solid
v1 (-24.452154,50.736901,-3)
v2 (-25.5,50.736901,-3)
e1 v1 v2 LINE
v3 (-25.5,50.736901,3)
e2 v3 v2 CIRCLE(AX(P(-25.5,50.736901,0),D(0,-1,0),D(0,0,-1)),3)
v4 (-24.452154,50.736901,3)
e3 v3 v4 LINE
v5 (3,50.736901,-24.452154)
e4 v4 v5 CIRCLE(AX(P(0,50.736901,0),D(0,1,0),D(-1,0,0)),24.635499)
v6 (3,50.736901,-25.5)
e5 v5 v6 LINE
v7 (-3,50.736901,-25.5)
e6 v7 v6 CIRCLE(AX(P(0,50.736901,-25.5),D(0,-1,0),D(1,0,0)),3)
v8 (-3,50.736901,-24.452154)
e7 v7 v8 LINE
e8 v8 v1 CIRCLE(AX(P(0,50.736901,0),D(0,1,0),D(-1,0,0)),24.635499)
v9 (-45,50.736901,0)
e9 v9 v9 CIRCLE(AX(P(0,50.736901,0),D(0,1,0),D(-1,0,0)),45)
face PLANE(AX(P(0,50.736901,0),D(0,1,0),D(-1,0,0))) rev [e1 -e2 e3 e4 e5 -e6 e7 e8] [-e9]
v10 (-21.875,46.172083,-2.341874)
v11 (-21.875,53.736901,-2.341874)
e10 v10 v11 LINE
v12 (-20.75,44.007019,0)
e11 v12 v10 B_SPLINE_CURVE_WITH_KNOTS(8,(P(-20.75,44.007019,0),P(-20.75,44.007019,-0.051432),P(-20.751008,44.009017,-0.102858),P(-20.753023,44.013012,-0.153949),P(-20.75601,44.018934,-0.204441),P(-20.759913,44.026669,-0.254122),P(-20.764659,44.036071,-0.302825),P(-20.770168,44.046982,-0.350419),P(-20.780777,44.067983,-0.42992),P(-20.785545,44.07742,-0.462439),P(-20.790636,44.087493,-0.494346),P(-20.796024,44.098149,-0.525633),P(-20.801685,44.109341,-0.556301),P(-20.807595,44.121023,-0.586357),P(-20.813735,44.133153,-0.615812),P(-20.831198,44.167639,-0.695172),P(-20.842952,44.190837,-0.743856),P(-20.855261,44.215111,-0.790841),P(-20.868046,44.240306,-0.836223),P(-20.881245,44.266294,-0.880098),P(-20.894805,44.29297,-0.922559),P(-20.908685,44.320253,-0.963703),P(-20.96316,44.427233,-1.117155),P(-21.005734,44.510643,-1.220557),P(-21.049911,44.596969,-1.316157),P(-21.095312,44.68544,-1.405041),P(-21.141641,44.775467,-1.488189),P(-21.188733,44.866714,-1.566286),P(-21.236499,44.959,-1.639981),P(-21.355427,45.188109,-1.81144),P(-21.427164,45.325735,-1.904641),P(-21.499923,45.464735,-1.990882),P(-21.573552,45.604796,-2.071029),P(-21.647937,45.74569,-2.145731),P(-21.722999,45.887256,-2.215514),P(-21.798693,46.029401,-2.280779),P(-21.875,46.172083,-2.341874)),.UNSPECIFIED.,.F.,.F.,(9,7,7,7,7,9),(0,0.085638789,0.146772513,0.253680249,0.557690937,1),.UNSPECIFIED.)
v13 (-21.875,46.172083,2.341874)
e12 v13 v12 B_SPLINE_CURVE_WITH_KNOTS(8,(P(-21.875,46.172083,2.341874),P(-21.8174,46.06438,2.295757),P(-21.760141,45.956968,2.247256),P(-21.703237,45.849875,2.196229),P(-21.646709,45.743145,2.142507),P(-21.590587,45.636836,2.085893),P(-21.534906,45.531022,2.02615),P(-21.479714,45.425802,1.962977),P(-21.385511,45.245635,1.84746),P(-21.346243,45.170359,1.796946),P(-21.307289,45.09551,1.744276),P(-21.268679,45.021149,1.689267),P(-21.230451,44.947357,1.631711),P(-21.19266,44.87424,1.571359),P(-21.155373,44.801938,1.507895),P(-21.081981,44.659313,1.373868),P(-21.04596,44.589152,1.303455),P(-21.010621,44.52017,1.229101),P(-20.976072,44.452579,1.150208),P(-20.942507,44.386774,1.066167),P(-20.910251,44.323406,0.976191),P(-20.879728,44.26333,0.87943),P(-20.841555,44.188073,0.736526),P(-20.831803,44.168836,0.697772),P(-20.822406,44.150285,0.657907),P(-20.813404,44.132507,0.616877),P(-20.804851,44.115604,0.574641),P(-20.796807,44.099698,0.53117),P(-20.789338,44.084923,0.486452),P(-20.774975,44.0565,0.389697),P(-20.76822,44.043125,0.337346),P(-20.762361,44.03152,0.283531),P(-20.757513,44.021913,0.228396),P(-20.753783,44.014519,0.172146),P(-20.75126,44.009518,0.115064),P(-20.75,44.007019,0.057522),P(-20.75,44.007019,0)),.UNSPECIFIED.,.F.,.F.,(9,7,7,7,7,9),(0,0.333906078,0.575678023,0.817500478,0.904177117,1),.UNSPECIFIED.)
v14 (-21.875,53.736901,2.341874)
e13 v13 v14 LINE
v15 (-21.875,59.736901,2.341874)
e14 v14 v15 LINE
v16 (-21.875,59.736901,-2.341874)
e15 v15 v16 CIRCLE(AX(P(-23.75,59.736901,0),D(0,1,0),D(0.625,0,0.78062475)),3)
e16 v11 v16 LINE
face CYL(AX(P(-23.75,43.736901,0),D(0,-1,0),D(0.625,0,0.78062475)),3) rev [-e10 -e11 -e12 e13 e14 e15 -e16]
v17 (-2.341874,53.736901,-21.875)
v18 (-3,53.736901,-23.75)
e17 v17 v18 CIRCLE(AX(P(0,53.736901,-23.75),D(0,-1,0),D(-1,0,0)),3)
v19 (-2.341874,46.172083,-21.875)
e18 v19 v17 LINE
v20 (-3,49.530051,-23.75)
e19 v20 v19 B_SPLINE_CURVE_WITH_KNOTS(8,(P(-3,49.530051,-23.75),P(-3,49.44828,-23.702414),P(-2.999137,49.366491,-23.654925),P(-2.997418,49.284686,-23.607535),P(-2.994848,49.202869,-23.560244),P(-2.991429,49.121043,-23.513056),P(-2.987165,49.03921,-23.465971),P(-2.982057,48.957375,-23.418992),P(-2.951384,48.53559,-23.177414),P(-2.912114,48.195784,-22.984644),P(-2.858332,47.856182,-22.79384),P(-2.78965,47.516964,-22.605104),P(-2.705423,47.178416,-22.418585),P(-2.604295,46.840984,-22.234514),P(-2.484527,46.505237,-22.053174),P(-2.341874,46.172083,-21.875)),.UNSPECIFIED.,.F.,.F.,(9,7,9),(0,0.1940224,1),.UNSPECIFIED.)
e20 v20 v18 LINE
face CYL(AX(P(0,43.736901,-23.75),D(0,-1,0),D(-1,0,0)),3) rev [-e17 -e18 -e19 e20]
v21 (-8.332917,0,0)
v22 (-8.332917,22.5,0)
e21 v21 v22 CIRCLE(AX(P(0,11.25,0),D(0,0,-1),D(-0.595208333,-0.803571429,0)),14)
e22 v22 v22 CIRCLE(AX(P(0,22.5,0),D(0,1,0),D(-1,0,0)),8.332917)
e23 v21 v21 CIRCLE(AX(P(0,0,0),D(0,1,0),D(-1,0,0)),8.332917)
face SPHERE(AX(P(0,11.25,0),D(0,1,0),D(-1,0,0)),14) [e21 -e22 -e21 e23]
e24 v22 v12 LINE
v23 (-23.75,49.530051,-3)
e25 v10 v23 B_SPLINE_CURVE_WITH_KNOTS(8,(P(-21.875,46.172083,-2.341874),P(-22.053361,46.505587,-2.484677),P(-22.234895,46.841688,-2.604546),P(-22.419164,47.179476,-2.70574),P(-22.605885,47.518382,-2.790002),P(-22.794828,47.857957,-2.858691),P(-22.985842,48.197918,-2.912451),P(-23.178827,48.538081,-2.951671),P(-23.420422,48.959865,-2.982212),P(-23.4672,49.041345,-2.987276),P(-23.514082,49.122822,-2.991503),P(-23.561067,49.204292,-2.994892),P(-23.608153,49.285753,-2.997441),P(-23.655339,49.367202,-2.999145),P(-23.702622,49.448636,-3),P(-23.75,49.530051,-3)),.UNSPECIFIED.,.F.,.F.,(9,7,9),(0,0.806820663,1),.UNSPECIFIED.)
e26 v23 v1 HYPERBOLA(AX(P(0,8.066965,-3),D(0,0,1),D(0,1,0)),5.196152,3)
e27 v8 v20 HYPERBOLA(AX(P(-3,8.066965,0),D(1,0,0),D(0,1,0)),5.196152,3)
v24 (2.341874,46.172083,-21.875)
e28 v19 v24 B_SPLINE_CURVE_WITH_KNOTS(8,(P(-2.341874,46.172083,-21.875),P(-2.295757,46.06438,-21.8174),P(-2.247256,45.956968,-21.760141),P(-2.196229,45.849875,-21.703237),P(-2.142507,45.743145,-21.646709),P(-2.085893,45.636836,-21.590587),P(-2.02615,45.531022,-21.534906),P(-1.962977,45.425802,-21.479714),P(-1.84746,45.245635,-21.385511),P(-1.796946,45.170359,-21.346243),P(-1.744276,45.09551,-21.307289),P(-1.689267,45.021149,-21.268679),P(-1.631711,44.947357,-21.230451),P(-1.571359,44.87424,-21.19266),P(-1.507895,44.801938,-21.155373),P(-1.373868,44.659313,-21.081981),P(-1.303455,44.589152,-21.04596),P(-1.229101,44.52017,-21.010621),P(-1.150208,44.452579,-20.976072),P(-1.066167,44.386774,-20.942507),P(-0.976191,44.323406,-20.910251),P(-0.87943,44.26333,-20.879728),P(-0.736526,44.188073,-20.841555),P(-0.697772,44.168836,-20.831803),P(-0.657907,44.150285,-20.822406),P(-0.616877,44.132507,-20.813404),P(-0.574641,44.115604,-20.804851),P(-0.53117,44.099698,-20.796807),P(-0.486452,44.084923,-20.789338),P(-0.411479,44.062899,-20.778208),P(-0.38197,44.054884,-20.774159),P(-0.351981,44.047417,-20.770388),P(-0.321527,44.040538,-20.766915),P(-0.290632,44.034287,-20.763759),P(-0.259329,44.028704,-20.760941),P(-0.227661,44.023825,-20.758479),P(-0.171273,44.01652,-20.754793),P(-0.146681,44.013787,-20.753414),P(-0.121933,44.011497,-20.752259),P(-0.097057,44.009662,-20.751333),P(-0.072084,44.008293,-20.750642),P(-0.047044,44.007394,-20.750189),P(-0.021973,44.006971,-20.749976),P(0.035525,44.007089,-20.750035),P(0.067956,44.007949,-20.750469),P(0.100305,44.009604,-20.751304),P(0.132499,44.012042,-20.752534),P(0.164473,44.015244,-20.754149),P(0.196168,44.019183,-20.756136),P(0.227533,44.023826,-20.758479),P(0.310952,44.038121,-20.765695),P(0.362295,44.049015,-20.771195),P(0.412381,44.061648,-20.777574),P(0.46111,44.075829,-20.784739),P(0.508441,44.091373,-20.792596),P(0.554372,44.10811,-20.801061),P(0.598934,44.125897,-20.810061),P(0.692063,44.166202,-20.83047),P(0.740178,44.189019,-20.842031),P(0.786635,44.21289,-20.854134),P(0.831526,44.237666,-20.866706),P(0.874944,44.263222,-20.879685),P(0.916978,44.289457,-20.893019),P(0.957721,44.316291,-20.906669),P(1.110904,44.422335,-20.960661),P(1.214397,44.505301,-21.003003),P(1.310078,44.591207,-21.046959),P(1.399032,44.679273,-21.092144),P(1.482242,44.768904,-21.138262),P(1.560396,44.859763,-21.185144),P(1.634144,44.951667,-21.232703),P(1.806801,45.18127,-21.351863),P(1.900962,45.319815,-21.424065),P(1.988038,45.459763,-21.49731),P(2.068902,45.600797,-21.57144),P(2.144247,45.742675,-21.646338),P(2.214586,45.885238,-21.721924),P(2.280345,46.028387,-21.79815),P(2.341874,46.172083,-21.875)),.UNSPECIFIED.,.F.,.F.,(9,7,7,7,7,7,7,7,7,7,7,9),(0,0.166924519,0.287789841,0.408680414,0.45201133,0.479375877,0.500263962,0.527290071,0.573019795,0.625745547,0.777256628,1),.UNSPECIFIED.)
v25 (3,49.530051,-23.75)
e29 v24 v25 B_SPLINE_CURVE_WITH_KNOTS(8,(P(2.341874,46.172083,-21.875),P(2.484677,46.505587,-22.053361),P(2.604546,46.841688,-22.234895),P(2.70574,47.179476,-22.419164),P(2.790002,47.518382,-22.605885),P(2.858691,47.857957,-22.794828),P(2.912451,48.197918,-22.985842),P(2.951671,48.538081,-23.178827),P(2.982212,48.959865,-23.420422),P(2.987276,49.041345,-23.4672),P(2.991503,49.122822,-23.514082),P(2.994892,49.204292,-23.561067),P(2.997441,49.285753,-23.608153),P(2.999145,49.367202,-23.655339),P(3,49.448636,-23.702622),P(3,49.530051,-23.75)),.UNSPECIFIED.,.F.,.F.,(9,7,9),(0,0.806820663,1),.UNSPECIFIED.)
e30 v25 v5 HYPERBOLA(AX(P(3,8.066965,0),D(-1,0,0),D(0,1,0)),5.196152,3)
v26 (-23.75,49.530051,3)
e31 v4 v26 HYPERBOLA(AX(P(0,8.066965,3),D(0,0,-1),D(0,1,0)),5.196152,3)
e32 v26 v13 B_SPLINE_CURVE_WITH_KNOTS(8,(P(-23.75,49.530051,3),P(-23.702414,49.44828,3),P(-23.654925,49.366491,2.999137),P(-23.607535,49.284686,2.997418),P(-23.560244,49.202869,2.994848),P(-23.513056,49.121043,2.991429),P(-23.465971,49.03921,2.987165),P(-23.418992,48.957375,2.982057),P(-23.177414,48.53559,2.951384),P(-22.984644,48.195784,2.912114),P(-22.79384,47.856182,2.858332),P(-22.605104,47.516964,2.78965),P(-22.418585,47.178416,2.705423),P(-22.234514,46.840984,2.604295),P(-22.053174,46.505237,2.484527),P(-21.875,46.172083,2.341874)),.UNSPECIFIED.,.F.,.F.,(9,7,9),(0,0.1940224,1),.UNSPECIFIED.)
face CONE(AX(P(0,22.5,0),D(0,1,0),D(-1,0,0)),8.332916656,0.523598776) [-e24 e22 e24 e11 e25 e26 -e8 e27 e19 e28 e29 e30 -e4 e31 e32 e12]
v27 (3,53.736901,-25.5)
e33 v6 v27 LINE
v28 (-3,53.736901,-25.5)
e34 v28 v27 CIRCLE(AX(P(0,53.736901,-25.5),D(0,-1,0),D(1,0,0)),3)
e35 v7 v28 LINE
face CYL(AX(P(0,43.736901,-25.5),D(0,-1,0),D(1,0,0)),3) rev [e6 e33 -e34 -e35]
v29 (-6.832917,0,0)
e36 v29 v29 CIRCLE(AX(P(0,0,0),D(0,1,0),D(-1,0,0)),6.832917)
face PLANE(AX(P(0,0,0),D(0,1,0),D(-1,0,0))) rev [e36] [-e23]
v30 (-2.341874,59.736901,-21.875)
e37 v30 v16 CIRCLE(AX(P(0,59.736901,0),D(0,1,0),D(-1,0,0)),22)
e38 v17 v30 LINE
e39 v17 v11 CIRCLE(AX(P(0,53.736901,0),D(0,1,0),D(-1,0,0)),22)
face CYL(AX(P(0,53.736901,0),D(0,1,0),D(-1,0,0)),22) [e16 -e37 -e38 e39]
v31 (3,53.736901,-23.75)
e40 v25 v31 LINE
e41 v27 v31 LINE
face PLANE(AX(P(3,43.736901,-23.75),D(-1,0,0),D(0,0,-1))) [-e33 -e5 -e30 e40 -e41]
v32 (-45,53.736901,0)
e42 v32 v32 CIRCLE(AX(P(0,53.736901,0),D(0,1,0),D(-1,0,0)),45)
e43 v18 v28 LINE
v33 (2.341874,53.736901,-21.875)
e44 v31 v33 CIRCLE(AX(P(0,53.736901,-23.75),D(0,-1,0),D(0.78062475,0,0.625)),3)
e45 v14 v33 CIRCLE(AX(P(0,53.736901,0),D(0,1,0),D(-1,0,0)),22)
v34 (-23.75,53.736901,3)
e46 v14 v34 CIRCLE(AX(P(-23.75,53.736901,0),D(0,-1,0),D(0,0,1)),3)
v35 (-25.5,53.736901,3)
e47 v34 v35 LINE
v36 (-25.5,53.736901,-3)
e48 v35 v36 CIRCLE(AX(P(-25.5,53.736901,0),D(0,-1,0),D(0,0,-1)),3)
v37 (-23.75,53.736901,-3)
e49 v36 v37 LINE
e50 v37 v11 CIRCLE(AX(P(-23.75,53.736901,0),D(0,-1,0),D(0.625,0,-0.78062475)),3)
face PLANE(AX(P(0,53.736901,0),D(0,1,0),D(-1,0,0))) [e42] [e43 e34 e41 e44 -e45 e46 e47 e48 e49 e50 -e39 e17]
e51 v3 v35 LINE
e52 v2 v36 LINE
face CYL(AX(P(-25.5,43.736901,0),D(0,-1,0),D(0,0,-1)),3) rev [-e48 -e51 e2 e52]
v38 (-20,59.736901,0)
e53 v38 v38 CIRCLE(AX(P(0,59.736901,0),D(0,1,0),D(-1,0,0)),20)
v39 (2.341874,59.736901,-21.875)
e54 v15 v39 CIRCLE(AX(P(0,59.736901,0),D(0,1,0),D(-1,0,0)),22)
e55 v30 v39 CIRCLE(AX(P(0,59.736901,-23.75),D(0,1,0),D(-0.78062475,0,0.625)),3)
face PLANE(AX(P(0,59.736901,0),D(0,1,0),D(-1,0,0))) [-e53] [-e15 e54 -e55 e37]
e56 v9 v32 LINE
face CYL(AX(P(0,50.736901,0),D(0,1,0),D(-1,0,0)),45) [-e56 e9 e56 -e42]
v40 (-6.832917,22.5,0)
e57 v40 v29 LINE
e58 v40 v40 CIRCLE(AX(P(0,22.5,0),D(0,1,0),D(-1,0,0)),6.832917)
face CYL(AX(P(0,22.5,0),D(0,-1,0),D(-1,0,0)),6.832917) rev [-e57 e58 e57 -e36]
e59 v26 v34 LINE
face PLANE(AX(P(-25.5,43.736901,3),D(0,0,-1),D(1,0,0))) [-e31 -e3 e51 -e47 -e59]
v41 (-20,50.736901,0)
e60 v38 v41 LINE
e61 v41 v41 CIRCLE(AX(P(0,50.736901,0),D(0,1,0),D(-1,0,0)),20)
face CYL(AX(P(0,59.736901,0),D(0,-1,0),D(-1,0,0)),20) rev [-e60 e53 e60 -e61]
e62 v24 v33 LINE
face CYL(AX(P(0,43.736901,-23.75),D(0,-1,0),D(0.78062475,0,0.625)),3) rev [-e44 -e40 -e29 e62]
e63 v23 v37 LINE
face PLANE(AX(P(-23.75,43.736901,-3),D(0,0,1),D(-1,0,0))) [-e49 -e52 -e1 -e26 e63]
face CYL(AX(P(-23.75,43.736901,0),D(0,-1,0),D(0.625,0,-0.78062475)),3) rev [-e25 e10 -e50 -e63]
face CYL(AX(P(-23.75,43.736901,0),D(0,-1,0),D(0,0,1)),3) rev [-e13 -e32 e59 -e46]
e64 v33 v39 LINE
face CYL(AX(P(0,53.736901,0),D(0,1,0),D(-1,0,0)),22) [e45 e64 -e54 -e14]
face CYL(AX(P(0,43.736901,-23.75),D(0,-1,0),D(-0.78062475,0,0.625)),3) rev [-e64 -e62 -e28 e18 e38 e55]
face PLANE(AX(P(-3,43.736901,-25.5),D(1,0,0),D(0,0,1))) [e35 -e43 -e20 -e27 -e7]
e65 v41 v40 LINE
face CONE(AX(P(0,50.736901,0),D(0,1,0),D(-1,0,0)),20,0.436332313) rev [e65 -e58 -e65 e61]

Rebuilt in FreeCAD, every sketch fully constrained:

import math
import FreeCAD as App
import Part
import Sketcher
Q = App.Units.Quantity

doc = App.newDocument("Part")
body = doc.addObject("PartDesign::Body", "Body")

sketch1 = body.newObject("Sketcher::SketchObject", "Sketch")
sketch1.AttachmentSupport = (doc.getObject("XY_Plane"), [""])
sketch1.MapMode = "FlatFace"
sketch1.addGeometry([
    Part.LineSegment(App.Vector(-6.8, 0, 0), App.Vector(-6.8, 22.5, 0)),
    Part.LineSegment(App.Vector(-6.8, 22.5, 0), App.Vector(-20, 50.7, 0)),
    Part.LineSegment(App.Vector(-20, 50.7, 0), App.Vector(-20, 59.7, 0)),
    Part.LineSegment(App.Vector(-20, 59.7, 0), App.Vector(-22, 59.7, 0)),
    Part.LineSegment(App.Vector(-22, 59.7, 0), App.Vector(-22, 53.7, 0)),
    Part.LineSegment(App.Vector(-22, 53.7, 0), App.Vector(-45, 53.7, 0)),
    Part.LineSegment(App.Vector(-45, 53.7, 0), App.Vector(-45, 50.7, 0)),
    Part.LineSegment(App.Vector(-45, 50.7, 0), App.Vector(-24.6, 50.7, 0)),
    Part.LineSegment(App.Vector(-24.6, 50.7, 0), App.Vector(-8.3, 22.5, 0)),
    Part.ArcOfCircle(Part.Circle(App.Vector(0, 11.2, 0), App.Vector(0, 0, 1), 14), math.radians(127), math.radians(233)),
    Part.LineSegment(App.Vector(-8.3, 0, 0), App.Vector(-6.8, 0, 0)),
], False)
sketch1.addConstraint([
    Sketcher.Constraint("Coincident", 0, 2, 1, 1),
    Sketcher.Constraint("Coincident", 1, 2, 2, 1),
    Sketcher.Constraint("Coincident", 2, 2, 3, 1),
    Sketcher.Constraint("Coincident", 3, 2, 4, 1),
    Sketcher.Constraint("Coincident", 4, 2, 5, 1),
    Sketcher.Constraint("Coincident", 5, 2, 6, 1),
    Sketcher.Constraint("Coincident", 6, 2, 7, 1),
    Sketcher.Constraint("Coincident", 7, 2, 8, 1),
    Sketcher.Constraint("Coincident", 8, 2, 9, 1),
    Sketcher.Constraint("Coincident", 9, 2, 10, 1),
    Sketcher.Constraint("Coincident", 10, 2, 0, 1),
    Sketcher.Constraint("Vertical", 0),
    Sketcher.Constraint("Vertical", 2),
    Sketcher.Constraint("Horizontal", 3),
    Sketcher.Constraint("Vertical", 4),
    Sketcher.Constraint("Horizontal", 5),
    Sketcher.Constraint("Vertical", 6),
    Sketcher.Constraint("Horizontal", 7),
    Sketcher.Constraint("Horizontal", 10),
    Sketcher.Constraint("PointOnObject", 9, 3, -2),
    Sketcher.Constraint("PointOnObject", 9, 2, -1),
    Sketcher.Constraint("Horizontal", 1, 2, 6, 2),
    Sketcher.Constraint("Horizontal", 0, 2, 8, 2),
    Sketcher.Constraint("Vertical", 8, 2, 9, 2),
    Sketcher.Constraint("Radius", 9, 14.0),
    Sketcher.Constraint("DistanceX", 3, 2, 3, 1, 2.0),
    Sketcher.Constraint("DistanceX", 5, 2, 5, 1, 23.0),
    Sketcher.Constraint("DistanceY", 2, 1, 2, 2, 9.0),
    Sketcher.Constraint("DistanceY", 4, 2, 4, 1, 6.0),
    Sketcher.Constraint("Angle", 1, Q("115 deg")),
    Sketcher.Constraint("Angle", 8, Q("-60 deg")),
    Sketcher.Constraint("DistanceX", 10, 1, 10, 2, 1.5),
    Sketcher.Constraint("DistanceY", 0, 1, 0, 2, 22.5),
    Sketcher.Constraint("DistanceX", 1, 2, -1, 1, 20.0),
])
revolution = body.newObject("PartDesign::Revolution", "Revolution")
revolution.Profile = sketch1
revolution.ReferenceAxis = (sketch1, ["V_Axis"])
revolution.Angle = 360

sketch2 = body.newObject("Sketcher::SketchObject", "Sketch001")
sketch2.AttachmentSupport = (doc.getObject("XZ_Plane"), [""])
sketch2.MapMode = "FlatFace"
sketch2.AttachmentOffset = App.Placement(App.Vector(0, 0, -43.736901), App.Rotation())
sketch2.addGeometry([
    Part.LineSegment(App.Vector(-23.8, -3, 0), App.Vector(-25.5, -3, 0)),
    Part.ArcOfCircle(Part.Circle(App.Vector(-25.5, 0, 0), App.Vector(0, 0, 1), 3), math.radians(90), math.radians(270)),
    Part.LineSegment(App.Vector(-25.5, 3, 0), App.Vector(-23.8, 3, 0)),
    Part.ArcOfCircle(Part.Circle(App.Vector(-23.8, 0, 0), App.Vector(0, 0, 1), 3), math.radians(51), math.radians(90)),
    Part.ArcOfCircle(Part.Circle(App.Vector(-23.7, 0, 0), App.Vector(0, 0, 1), 3), math.radians(-51), math.radians(51)),
    Part.ArcOfCircle(Part.Circle(App.Vector(-23.8, 0, 0), App.Vector(0, 0, 1), 3), math.radians(-90), math.radians(-51)),
], False)
sketch2.addConstraint([
    Sketcher.Constraint("Tangent", 0, 2, 1, 2),
    Sketcher.Constraint("Tangent", 1, 1, 2, 1),
    Sketcher.Constraint("Tangent", 2, 2, 3, 2),
    Sketcher.Constraint("Tangent", 3, 1, 4, 2),
    Sketcher.Constraint("Tangent", 4, 1, 5, 2),
    Sketcher.Constraint("Tangent", 5, 1, 0, 1),
    Sketcher.Constraint("Horizontal", 0),
    Sketcher.Constraint("Horizontal", 2),
    Sketcher.Constraint("Coincident", 5, 3, 3, 3),
    Sketcher.Constraint("Symmetric", 3, 1, 4, 1, -1),
    Sketcher.Constraint("Radius", 1, 3.0),
    Sketcher.Constraint("DistanceX", 0, 2, 0, 1, 1.75),
    Sketcher.Constraint("DistanceX", 1, 3, -1, 1, 25.5),
    Sketcher.Constraint("DistanceX", 3, 1, -1, 1, 21.875),
])
pocket1 = body.newObject("PartDesign::Pocket", "Pocket")
pocket1.Profile = sketch2
pocket1.Length = 16
doc.recompute()

polarpattern = body.newObject("PartDesign::PolarPattern", "PolarPattern")
polarpattern.Originals = [pocket1]
polarpattern.Axis = (doc.getObject("Y_Axis"), [""])
polarpattern.Angle = 90
polarpattern.Occurrences = 2
polarpattern.Reversed = True
body.Tip = polarpattern

doc.recompute()
